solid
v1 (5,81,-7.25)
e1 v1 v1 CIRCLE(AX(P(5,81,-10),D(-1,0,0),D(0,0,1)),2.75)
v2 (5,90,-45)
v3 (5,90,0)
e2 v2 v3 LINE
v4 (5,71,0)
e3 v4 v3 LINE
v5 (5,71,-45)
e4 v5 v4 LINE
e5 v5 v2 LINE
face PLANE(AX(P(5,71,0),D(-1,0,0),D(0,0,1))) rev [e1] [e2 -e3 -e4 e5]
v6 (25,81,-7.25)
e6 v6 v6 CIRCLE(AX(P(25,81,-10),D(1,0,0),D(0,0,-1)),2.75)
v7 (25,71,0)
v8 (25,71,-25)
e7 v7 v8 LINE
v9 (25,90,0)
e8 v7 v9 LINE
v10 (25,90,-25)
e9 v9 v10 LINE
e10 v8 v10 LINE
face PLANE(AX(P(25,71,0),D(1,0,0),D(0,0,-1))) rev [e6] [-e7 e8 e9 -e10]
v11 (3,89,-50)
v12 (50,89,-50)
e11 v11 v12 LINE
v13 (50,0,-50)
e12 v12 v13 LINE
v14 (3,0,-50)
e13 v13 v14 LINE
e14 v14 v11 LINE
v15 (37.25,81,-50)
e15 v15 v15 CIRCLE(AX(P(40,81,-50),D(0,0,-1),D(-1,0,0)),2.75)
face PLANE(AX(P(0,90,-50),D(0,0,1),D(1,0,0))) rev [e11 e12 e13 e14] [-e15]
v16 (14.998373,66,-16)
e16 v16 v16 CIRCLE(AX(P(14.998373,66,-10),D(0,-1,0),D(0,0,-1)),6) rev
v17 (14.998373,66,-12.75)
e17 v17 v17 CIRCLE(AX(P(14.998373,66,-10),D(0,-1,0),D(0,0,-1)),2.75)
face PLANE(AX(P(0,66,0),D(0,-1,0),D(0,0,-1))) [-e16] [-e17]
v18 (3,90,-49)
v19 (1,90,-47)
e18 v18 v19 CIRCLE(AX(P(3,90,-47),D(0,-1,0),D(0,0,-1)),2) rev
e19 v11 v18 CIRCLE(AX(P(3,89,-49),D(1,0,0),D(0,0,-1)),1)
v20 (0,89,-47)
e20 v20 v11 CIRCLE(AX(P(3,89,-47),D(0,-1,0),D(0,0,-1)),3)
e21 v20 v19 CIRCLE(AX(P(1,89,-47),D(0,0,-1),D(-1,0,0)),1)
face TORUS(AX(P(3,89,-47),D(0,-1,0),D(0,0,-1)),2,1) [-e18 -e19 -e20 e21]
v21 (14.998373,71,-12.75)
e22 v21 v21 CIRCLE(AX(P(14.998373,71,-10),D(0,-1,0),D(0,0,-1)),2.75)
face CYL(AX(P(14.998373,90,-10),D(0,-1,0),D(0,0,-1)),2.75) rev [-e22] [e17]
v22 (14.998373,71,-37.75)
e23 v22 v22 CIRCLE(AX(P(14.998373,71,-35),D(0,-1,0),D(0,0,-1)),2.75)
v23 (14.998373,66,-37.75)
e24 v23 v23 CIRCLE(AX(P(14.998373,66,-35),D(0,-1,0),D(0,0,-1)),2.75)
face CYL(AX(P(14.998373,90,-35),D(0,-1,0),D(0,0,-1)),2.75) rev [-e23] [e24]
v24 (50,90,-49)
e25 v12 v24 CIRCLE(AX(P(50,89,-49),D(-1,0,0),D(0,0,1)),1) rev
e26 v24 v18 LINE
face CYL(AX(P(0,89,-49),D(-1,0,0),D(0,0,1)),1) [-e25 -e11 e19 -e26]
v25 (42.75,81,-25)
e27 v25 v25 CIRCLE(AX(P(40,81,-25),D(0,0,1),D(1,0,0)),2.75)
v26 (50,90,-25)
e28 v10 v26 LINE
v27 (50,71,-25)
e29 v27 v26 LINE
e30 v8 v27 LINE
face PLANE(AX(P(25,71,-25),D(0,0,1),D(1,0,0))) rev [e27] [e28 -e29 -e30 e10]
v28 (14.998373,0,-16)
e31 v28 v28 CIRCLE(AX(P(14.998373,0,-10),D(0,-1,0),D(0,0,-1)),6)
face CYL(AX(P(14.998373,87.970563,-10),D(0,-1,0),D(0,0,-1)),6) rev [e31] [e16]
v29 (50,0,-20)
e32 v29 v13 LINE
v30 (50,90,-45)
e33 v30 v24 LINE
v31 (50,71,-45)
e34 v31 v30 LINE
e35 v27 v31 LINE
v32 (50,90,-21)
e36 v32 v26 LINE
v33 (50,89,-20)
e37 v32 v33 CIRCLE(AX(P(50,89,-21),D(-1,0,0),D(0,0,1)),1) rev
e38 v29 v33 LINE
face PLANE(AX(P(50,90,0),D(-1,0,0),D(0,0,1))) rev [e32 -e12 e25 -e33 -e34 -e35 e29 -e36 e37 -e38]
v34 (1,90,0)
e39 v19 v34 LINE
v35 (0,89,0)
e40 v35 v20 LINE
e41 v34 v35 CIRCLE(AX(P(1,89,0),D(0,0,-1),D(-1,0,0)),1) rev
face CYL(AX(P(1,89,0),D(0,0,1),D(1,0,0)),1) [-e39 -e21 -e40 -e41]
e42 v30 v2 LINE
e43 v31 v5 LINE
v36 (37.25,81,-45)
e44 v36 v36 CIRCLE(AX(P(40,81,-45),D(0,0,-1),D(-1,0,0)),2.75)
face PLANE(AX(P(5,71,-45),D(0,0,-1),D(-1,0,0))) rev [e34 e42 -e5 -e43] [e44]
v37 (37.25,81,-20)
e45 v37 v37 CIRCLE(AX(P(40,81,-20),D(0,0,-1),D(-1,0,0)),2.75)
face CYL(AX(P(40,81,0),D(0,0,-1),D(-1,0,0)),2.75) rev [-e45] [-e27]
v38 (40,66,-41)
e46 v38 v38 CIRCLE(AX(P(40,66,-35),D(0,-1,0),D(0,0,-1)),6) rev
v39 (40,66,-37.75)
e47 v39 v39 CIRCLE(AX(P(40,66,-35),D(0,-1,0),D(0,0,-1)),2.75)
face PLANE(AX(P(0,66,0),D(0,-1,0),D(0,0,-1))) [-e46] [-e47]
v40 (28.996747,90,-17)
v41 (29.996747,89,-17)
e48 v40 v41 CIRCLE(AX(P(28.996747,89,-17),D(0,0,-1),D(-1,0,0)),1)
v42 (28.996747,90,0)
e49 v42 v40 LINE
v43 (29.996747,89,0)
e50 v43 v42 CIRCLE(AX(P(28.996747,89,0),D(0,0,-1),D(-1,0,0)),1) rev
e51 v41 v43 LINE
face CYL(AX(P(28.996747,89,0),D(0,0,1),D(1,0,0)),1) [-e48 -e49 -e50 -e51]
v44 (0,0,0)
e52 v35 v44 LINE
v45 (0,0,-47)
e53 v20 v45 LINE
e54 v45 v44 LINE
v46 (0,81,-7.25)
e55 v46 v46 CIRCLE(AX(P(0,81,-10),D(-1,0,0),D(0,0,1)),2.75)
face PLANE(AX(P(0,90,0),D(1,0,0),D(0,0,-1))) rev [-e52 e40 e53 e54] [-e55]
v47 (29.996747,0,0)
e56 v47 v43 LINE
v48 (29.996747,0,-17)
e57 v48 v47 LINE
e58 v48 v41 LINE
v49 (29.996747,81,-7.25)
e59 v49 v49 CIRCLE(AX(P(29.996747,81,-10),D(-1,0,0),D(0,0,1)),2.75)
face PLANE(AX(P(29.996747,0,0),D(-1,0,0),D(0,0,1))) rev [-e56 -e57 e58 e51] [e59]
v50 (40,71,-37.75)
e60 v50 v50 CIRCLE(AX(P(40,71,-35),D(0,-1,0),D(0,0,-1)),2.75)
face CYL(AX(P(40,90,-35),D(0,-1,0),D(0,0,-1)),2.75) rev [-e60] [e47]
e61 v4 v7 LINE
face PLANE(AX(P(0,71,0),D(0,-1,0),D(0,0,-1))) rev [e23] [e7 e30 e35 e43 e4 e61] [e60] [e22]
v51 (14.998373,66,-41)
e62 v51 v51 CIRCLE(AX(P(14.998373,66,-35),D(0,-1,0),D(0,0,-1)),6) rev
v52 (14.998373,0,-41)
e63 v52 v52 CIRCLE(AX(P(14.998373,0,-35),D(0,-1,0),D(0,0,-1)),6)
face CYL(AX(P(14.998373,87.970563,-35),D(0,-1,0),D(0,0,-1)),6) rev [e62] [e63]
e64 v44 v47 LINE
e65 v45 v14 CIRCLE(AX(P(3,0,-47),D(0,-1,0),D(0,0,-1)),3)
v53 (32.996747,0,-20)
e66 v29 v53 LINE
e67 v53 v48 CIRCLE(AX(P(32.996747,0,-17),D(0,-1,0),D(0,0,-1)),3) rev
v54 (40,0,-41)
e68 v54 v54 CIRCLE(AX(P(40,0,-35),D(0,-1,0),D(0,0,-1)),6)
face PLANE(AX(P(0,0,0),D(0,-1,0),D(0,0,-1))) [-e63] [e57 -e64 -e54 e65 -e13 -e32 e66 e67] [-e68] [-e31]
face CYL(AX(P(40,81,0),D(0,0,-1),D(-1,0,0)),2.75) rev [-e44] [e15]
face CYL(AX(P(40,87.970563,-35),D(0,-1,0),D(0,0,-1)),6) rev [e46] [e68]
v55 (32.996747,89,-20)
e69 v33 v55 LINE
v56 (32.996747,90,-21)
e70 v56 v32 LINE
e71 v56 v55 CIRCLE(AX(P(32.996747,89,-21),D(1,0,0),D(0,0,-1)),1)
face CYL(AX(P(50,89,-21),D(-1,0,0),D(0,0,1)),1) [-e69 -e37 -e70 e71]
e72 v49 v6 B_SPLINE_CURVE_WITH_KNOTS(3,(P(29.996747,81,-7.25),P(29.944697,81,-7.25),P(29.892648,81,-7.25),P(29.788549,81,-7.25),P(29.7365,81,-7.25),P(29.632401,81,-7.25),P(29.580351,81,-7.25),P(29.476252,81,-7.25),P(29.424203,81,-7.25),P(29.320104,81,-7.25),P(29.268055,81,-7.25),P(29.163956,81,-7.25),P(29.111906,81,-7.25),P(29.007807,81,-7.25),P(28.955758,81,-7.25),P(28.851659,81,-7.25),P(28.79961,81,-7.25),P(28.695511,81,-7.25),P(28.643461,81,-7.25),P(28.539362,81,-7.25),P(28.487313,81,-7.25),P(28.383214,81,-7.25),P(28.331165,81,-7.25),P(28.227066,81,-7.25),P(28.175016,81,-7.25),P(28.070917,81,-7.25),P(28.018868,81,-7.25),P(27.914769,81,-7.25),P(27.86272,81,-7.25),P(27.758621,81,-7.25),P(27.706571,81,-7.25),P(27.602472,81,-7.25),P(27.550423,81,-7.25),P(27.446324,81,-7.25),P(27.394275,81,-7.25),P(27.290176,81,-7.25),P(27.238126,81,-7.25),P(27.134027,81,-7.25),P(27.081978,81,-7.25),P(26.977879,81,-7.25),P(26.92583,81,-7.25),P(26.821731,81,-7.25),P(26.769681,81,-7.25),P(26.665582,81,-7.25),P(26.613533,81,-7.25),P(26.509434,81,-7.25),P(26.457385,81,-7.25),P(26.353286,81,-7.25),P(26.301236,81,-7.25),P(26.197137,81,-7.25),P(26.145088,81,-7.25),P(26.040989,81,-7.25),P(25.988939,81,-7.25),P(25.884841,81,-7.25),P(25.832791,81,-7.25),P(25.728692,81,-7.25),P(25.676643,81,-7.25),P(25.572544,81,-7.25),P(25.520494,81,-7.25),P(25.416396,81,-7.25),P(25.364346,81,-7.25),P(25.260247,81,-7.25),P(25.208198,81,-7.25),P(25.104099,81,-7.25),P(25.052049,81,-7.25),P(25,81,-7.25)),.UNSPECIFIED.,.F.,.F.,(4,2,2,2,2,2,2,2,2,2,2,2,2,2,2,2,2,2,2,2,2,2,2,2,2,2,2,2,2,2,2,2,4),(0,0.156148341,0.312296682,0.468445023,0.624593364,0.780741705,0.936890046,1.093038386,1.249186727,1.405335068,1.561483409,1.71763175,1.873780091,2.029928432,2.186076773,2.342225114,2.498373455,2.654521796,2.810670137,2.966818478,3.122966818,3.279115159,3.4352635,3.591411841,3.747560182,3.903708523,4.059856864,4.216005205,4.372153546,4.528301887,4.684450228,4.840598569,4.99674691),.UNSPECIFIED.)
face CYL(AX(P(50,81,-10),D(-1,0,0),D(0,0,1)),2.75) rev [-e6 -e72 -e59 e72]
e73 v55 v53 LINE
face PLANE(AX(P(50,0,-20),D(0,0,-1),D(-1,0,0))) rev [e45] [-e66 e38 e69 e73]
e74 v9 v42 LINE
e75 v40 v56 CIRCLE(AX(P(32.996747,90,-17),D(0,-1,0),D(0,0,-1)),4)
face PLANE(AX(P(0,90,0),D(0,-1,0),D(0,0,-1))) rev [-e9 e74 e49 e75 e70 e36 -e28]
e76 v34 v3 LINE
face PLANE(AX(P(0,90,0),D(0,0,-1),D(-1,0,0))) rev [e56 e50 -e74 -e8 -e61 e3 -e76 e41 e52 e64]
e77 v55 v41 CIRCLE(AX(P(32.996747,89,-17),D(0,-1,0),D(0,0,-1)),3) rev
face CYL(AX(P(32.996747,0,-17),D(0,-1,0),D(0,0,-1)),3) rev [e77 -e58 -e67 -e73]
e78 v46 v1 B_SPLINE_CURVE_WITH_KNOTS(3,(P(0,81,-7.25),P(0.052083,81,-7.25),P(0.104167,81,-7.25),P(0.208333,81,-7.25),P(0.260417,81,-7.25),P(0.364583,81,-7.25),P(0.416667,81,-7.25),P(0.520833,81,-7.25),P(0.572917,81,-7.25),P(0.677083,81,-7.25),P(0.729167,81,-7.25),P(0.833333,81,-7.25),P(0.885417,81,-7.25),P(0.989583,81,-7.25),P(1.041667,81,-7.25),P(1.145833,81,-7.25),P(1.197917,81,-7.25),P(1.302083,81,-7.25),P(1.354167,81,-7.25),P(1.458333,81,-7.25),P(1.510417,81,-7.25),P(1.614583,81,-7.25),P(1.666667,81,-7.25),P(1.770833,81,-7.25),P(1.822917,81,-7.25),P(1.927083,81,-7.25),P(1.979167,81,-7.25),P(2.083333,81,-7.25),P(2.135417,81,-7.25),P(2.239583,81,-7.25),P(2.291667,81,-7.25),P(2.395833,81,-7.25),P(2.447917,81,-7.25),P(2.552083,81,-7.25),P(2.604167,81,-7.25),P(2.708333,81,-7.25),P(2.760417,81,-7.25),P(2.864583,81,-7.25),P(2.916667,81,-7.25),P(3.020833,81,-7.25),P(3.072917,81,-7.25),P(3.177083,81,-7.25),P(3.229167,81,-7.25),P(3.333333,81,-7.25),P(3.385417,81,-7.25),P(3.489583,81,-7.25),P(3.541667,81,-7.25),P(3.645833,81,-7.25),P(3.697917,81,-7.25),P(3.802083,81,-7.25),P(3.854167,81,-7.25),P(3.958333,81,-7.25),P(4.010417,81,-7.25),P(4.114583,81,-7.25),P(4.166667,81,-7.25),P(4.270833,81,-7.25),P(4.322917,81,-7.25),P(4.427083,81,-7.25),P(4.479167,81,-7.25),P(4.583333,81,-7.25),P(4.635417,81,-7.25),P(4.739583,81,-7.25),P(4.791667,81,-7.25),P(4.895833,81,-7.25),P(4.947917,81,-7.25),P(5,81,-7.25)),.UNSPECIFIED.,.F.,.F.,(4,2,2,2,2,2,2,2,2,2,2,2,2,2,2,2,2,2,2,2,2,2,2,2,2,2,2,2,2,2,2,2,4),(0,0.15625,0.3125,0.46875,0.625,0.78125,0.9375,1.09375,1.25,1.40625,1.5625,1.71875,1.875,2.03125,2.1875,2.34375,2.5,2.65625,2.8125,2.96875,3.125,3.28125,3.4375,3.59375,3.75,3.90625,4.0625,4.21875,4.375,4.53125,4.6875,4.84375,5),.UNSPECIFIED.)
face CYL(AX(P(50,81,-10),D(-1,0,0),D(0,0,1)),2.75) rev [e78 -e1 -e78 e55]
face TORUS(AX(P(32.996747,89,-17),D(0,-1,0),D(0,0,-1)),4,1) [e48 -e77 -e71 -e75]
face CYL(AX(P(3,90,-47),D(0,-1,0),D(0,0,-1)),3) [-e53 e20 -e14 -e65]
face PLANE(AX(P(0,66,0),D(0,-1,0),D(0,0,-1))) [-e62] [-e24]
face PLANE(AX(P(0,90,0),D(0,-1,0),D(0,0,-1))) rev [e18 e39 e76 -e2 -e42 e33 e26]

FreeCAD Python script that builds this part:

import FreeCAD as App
import Part
import Sketcher
Q = App.Units.Quantity


def edges_at(feature, points):
    """Names of the edges that pass closest to the given points."""
    edges = feature.Shape.Edges
    near = lambda p: min(range(len(edges)), key=lambda i: edges[i].distToShape(Part.Vertex(*p))[0])
    return sorted({f"Edge{near(p) + 1}" for p in points})

doc = App.newDocument("Part")
body = doc.addObject("PartDesign::Body", "Body")

sketch1 = doc.addObject("Sketcher::SketchObject", "Sketch")
body.addObject(sketch1)
sketch1.AttachmentSupport = (doc.XZ_Plane, [""])
sketch1.MapMode = "FlatFace"
sketch1.addGeometry(Part.LineSegment(App.Vector(0, -50, 0), App.Vector(0, 0, 0)), False)
sketch1.addGeometry(Part.LineSegment(App.Vector(0, 0, 0), App.Vector(50, 0, 0)), False)
sketch1.addGeometry(Part.LineSegment(App.Vector(50, 0, 0), App.Vector(50, -50, 0)), False)
sketch1.addGeometry(Part.LineSegment(App.Vector(50, -50, 0), App.Vector(0, -50, 0)), False)
sketch1.addConstraint(Sketcher.Constraint("Coincident", 0, 2, 1, 1))
sketch1.addConstraint(Sketcher.Constraint("Coincident", 1, 2, 2, 1))
sketch1.addConstraint(Sketcher.Constraint("Coincident", 2, 2, 3, 1))
sketch1.addConstraint(Sketcher.Constraint("Coincident", 3, 2, 0, 1))
sketch1.addConstraint(Sketcher.Constraint("Vertical", 0))
sketch1.addConstraint(Sketcher.Constraint("Horizontal", 1))
sketch1.addConstraint(Sketcher.Constraint("Vertical", 2))
sketch1.addConstraint(Sketcher.Constraint("Horizontal", 3))
sketch1.addConstraint(Sketcher.Constraint("Coincident", 0, 2, -1, 1))
sketch1.addConstraint(Sketcher.Constraint("Equal", 3, 0))
sketch1.addConstraint(Sketcher.Constraint("DistanceX", 1, 1, 1, 2, Q("50 mm")))
pad1 = doc.addObject("PartDesign::Pad", "Pad")
body.addObject(pad1)
pad1.Profile = sketch1
pad1.Length = 90
pad1.Reversed = True

sketch2 = doc.addObject("Sketcher::SketchObject", "Sketch001")
body.addObject(sketch2)
sketch2.AttachmentSupport = (doc.XZ_Plane, [""])
sketch2.MapMode = "FlatFace"
sketch2.AttachmentOffset = App.Placement(App.Vector(0, 0, -90), App.Rotation())
sketch2.addGeometry(Part.LineSegment(App.Vector(5, 0, 0), App.Vector(25, 0, 0)), False)
sketch2.addGeometry(Part.LineSegment(App.Vector(25, 0, 0), App.Vector(25, -25, 0)), False)
sketch2.addGeometry(Part.LineSegment(App.Vector(25, -25, 0), App.Vector(50, -25, 0)), False)
sketch2.addGeometry(Part.LineSegment(App.Vector(50, -25, 0), App.Vector(50, -45, 0)), False)
sketch2.addGeometry(Part.LineSegment(App.Vector(50, -45, 0), App.Vector(5, -45, 0)), False)
sketch2.addGeometry(Part.LineSegment(App.Vector(5, -45, 0), App.Vector(5, 0, 0)), False)
sketch2.addConstraint(Sketcher.Constraint("Coincident", 0, 2, 1, 1))
sketch2.addConstraint(Sketcher.Constraint("Coincident", 1, 2, 2, 1))
sketch2.addConstraint(Sketcher.Constraint("Coincident", 2, 2, 3, 1))
sketch2.addConstraint(Sketcher.Constraint("Coincident", 3, 2, 4, 1))
sketch2.addConstraint(Sketcher.Constraint("Coincident", 4, 2, 5, 1))
sketch2.addConstraint(Sketcher.Constraint("Coincident", 5, 2, 0, 1))
sketch2.addConstraint(Sketcher.Constraint("Horizontal", 0))
sketch2.addConstraint(Sketcher.Constraint("Vertical", 1))
sketch2.addConstraint(Sketcher.Constraint("Horizontal", 2))
sketch2.addConstraint(Sketcher.Constraint("Vertical", 3))
sketch2.addConstraint(Sketcher.Constraint("Horizontal", 4))
sketch2.addConstraint(Sketcher.Constraint("Vertical", 5))
sketch2.addConstraint(Sketcher.Constraint("PointOnObject", 0, 2, -1))
sketch2.addConstraint(Sketcher.Constraint("Equal", 2, 1))
sketch2.addConstraint(Sketcher.Constraint("Equal", 0, 3))
sketch2.addConstraint(Sketcher.Constraint("DistanceX", 0, 1, 0, 2, Q("20 mm")))
sketch2.addConstraint(Sketcher.Constraint("DistanceX", 2, 1, 2, 2, Q("25 mm")))
sketch2.addConstraint(Sketcher.Constraint("DistanceX", -1, 1, 0, 2, Q("25 mm")))
pocket1 = doc.addObject("PartDesign::Pocket", "Pocket")
body.addObject(pocket1)
pocket1.Profile = sketch2
pocket1.Length = 19
pocket1.Reversed = True

sketch3 = doc.addObject("Sketcher::SketchObject", "Sketch002")
body.addObject(sketch3)
sketch3.AttachmentSupport = (doc.XZ_Plane, [""])
sketch3.MapMode = "FlatFace"
sketch3.AttachmentOffset = App.Placement(App.Vector(0, 0, -90), App.Rotation())
sketch3.addGeometry(Part.LineSegment(App.Vector(29.996747, -20, 0), App.Vector(29.996747, 0, 0)), False)
sketch3.addGeometry(Part.LineSegment(App.Vector(29.996747, 0, 0), App.Vector(50, 0, 0)), False)
sketch3.addGeometry(Part.LineSegment(App.Vector(50, 0, 0), App.Vector(50, -20, 0)), False)
sketch3.addGeometry(Part.LineSegment(App.Vector(50, -20, 0), App.Vector(29.996747, -20, 0)), False)
sketch3.addConstraint(Sketcher.Constraint("Coincident", 0, 2, 1, 1))
sketch3.addConstraint(Sketcher.Constraint("Coincident", 1, 2, 2, 1))
sketch3.addConstraint(Sketcher.Constraint("Coincident", 2, 2, 3, 1))
sketch3.addConstraint(Sketcher.Constraint("Coincident", 3, 2, 0, 1))
sketch3.addConstraint(Sketcher.Constraint("Vertical", 0))
sketch3.addConstraint(Sketcher.Constraint("Horizontal", 1))
sketch3.addConstraint(Sketcher.Constraint("Vertical", 2))
sketch3.addConstraint(Sketcher.Constraint("Horizontal", 3))
sketch3.addConstraint(Sketcher.Constraint("PointOnObject", 0, 2, -1))
sketch3.addConstraint(Sketcher.Constraint("DistanceY", 0, 1, 0, 2, Q("20 mm")))
sketch3.addConstraint(Sketcher.Constraint("DistanceX", -1, 1, 1, 2, Q("50 mm")))
sketch3.addConstraint(Sketcher.Constraint("DistanceX", 1, 1, 1, 2, Q("20.003253 mm")))
pocket2 = doc.addObject("PartDesign::Pocket", "Pocket001")
body.addObject(pocket2)
pocket2.Profile = sketch3
pocket2.Type = "ThroughAll"
pocket2.Reversed = True

sketch4 = doc.addObject("Sketcher::SketchObject", "Sketch003")
body.addObject(sketch4)
sketch4.AttachmentSupport = (doc.XZ_Plane, [""])
sketch4.MapMode = "FlatFace"
sketch4.addGeometry(Part.Circle(App.Vector(14.998373, -10, 0), App.Vector(0, 0, 1), 6), False)
sketch4.addGeometry(Part.Circle(App.Vector(40, -35, 0), App.Vector(0, 0, 1), 6), False)
sketch4.addGeometry(Part.Circle(App.Vector(14.998373, -35, 0), App.Vector(0, 0, 1), 6), False)
sketch4.addConstraint(Sketcher.Constraint("Equal", 0, 1))
sketch4.addConstraint(Sketcher.Constraint("Equal", 1, 2))
sketch4.addConstraint(Sketcher.Constraint("Horizontal", 1, 3, 2, 3))
sketch4.addConstraint(Sketcher.Constraint("Vertical", 0, 3, 2, 3))
sketch4.addConstraint(Sketcher.Constraint("Diameter", 0, Q("12 mm")))
sketch4.addConstraint(Sketcher.Constraint("DistanceY", 0, 3, -1, 1, Q("10 mm")))
sketch4.addConstraint(Sketcher.Constraint("DistanceX", -1, 1, 1, 3, Q("40 mm")))
sketch4.addConstraint(Sketcher.Constraint("DistanceY", 1, 3, -1, 1, Q("35 mm")))
sketch4.addConstraint(Sketcher.Constraint("DistanceX", -1, 1, 0, 3, Q("14.998373 mm")))
pocket3 = doc.addObject("PartDesign::Pocket", "Pocket002")
body.addObject(pocket3)
pocket3.Profile = sketch4
pocket3.Length = 66

sketch5 = doc.addObject("Sketcher::SketchObject", "Sketch004")
body.addObject(sketch5)
sketch5.AttachmentSupport = (doc.XZ_Plane, [""])
sketch5.MapMode = "FlatFace"
sketch5.AttachmentOffset = App.Placement(App.Vector(0, 0, -66), App.Rotation())
sketch5.addGeometry(Part.Circle(App.Vector(14.998373, -10, 0), App.Vector(0, 0, 1), 2.75), False)
sketch5.addGeometry(Part.Circle(App.Vector(40, -35, 0), App.Vector(0, 0, 1), 2.75), False)
sketch5.addGeometry(Part.Circle(App.Vector(14.998373, -35, 0), App.Vector(0, 0, 1), 2.75), False)
sketch5.addConstraint(Sketcher.Constraint("Equal", 0, 1))
sketch5.addConstraint(Sketcher.Constraint("Equal", 1, 2))
sketch5.addConstraint(Sketcher.Constraint("Horizontal", 1, 3, 2, 3))
sketch5.addConstraint(Sketcher.Constraint("Vertical", 0, 3, 2, 3))
sketch5.addConstraint(Sketcher.Constraint("Diameter", 0, Q("5.5 mm")))
sketch5.addConstraint(Sketcher.Constraint("DistanceY", 0, 3, -1, 1, Q("10 mm")))
sketch5.addConstraint(Sketcher.Constraint("DistanceX", -1, 1, 1, 3, Q("40 mm")))
sketch5.addConstraint(Sketcher.Constraint("DistanceY", 1, 3, -1, 1, Q("35 mm")))
sketch5.addConstraint(Sketcher.Constraint("DistanceX", -1, 1, 0, 3, Q("14.998373 mm")))
pocket4 = doc.addObject("PartDesign::Pocket", "Pocket003")
body.addObject(pocket4)
pocket4.Profile = sketch5
pocket4.Type = "ThroughAll"

sketch6 = doc.addObject("Sketcher::SketchObject", "Sketch005")
body.addObject(sketch6)
sketch6.AttachmentSupport = (doc.YZ_Plane, [""])
sketch6.MapMode = "FlatFace"
sketch6.addGeometry(Part.Circle(App.Vector(81, -10, 0), App.Vector(0, 0, 1), 2.75), False)
sketch6.addConstraint(Sketcher.Constraint("Diameter", 0, Q("5.5 mm")))
sketch6.addConstraint(Sketcher.Constraint("DistanceX", -1, 1, 0, 3, Q("81 mm")))
sketch6.addConstraint(Sketcher.Constraint("DistanceY", 0, 3, -1, 1, Q("10 mm")))
pocket5 = doc.addObject("PartDesign::Pocket", "Pocket004")
body.addObject(pocket5)
pocket5.Profile = sketch6
pocket5.Type = "ThroughAll"
pocket5.Reversed = True

sketch7 = doc.addObject("Sketcher::SketchObject", "Sketch006")
body.addObject(sketch7)
sketch7.AttachmentSupport = (doc.XY_Plane, [""])
sketch7.MapMode = "FlatFace"
sketch7.AttachmentOffset = App.Placement(App.Vector(0, 0, -50), App.Rotation())
sketch7.addGeometry(Part.Circle(App.Vector(40, 81, 0), App.Vector(0, 0, 1), 2.75), False)
sketch7.addConstraint(Sketcher.Constraint("Diameter", 0, Q("5.5 mm")))
sketch7.addConstraint(Sketcher.Constraint("DistanceX", -1, 1, 0, 3, Q("40 mm")))
sketch7.addConstraint(Sketcher.Constraint("DistanceY", -1, 1, 0, 3, Q("81 mm")))
pocket6 = doc.addObject("PartDesign::Pocket", "Pocket005")
body.addObject(pocket6)
pocket6.Profile = sketch7
pocket6.Type = "ThroughAll"
pocket6.Reversed = True
doc.recompute()

fillet = doc.addObject("PartDesign::Fillet", "Fillet")
body.addObject(fillet)
fillet.Base = (pocket6, edges_at(pocket6, [(29.997, 45, -20), (0, 45, -50)]))
fillet.Radius = 3
doc.recompute()

fillet2 = doc.addObject("PartDesign::Fillet", "Fillet001")
body.addObject(fillet2)
fillet2.Base = (fillet, edges_at(fillet, [
    (30.875, 90, -19.121),
    (26.5, 90, -50),
    (41.498, 90, -20),
    (29.997, 90, -8.5),
    (0, 90, -23.5),
    (0.879, 90, -49.121),
]))
fillet2.Radius = 1

doc.recompute()
